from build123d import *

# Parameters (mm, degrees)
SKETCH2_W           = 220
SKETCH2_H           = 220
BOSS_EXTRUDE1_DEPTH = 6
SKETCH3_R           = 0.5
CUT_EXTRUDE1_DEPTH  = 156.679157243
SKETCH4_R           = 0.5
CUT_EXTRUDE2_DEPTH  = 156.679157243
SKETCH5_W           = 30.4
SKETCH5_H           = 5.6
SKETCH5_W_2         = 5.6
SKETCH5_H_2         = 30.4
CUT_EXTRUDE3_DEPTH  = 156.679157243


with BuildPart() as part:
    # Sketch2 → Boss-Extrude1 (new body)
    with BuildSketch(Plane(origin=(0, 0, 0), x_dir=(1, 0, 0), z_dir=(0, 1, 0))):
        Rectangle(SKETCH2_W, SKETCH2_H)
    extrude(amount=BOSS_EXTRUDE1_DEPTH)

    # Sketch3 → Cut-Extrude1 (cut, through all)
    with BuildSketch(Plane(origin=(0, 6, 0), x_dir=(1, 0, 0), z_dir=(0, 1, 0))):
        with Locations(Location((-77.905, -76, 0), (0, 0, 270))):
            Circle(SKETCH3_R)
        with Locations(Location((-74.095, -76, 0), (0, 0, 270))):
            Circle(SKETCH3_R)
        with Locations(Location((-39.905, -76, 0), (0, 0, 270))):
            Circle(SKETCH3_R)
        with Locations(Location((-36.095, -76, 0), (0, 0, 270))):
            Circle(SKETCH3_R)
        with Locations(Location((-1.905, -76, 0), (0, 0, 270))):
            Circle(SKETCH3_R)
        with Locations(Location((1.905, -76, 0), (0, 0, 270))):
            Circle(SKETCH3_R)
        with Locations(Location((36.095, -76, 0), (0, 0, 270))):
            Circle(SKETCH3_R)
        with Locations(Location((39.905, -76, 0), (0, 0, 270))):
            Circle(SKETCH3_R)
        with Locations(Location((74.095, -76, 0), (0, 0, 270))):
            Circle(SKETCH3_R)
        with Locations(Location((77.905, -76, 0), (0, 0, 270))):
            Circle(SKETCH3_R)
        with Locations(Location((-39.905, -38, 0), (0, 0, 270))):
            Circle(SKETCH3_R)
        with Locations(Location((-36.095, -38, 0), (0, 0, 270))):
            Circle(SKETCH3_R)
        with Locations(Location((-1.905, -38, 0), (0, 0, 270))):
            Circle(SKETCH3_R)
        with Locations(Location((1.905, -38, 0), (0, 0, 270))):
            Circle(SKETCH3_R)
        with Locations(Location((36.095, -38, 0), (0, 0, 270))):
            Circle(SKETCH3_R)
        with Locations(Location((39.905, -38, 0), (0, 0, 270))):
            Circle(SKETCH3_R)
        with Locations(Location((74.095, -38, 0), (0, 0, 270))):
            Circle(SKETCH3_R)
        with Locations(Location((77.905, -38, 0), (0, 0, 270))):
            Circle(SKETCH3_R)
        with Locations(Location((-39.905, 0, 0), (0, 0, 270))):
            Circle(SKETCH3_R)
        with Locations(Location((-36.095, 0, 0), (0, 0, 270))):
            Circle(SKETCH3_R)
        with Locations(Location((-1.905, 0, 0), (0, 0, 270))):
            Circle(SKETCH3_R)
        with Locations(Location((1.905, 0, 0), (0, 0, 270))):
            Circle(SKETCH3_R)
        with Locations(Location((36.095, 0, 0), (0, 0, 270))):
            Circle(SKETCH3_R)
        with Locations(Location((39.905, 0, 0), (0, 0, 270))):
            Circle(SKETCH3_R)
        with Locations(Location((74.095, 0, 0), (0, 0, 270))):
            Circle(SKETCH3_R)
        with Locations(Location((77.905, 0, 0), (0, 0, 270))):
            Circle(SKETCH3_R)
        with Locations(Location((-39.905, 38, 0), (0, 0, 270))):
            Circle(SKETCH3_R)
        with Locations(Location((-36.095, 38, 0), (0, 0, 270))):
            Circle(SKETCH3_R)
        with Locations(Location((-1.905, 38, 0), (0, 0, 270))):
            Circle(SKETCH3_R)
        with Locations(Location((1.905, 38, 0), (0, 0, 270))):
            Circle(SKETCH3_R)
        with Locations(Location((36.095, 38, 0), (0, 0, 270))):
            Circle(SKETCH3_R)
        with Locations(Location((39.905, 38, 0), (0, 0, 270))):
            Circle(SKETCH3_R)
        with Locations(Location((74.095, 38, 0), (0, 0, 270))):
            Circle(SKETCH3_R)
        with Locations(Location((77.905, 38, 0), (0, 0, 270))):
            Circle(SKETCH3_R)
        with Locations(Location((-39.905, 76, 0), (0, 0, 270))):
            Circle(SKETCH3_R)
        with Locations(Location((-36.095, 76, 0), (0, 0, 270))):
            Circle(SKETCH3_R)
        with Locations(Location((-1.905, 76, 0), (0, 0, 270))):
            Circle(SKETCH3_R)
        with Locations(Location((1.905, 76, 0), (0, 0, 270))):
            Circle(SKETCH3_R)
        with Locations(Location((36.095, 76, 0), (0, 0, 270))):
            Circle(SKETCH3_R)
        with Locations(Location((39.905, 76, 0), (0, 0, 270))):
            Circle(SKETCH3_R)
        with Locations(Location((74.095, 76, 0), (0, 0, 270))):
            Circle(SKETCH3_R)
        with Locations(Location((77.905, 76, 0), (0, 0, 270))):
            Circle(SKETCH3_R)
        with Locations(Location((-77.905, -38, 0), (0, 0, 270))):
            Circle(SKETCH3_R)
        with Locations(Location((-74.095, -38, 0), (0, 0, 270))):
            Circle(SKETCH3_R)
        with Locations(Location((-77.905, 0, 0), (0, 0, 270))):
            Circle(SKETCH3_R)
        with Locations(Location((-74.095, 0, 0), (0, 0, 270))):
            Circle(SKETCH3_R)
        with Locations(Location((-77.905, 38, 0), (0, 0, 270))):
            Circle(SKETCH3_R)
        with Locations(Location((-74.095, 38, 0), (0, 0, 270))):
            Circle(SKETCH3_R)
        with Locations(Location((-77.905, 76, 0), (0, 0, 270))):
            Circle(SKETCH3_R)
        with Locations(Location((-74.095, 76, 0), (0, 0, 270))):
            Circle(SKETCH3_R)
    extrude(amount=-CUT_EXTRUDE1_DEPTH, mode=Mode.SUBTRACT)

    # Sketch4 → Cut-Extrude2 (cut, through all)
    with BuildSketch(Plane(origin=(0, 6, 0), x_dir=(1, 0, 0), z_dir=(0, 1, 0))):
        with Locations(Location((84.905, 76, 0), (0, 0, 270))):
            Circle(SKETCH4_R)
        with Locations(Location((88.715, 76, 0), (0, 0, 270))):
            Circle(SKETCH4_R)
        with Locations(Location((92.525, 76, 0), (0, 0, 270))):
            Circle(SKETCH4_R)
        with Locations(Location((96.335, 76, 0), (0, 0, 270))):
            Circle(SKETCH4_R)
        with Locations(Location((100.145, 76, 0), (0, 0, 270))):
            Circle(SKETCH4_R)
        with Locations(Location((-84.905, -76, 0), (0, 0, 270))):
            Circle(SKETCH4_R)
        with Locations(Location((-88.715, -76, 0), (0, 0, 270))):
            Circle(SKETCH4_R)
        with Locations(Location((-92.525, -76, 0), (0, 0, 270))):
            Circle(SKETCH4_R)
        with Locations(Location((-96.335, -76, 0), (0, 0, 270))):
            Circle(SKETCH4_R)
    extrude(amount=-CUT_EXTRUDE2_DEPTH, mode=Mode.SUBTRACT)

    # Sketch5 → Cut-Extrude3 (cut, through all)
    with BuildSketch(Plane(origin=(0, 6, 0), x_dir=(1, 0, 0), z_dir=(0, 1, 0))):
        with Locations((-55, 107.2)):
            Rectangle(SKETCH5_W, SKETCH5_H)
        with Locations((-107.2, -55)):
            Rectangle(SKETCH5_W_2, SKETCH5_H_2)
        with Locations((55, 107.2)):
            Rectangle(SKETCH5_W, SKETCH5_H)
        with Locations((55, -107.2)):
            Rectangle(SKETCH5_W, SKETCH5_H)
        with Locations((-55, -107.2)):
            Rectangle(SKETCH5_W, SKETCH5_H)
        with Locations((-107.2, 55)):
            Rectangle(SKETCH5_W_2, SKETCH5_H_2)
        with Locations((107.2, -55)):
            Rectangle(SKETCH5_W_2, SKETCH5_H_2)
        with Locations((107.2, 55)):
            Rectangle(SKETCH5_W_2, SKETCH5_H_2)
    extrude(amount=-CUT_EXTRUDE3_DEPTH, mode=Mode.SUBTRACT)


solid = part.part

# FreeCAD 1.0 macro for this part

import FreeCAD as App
import Part
import Sketcher

V = App.Vector
Q = App.Units.Quantity


def add_polygon(sketch, points):
    """Adds a closed chain of lines whose ends are joined by coincident constraints."""
    first, n = sketch.GeometryCount, len(points)
    for a, b in zip(points, points[1:] + points[:1]):
        sketch.addGeometry(Part.LineSegment(App.Vector(*a, 0), App.Vector(*b, 0)), False)
    for i in range(n):
        sketch.addConstraint(Sketcher.Constraint("Coincident", first + i, 2, first + (i + 1) % n, 1))

doc = App.newDocument("Part")
params = doc.addObject("Spreadsheet::Sheet", "Params")
for row, (alias, value) in enumerate([
    ("sketch1_width", "220 mm"),
    ("pad1_length", "6 mm"),
    ("sketch2_diameter", "1 mm"),
    ("sketch3_diameter", "1 mm"),
    ("sketch4_width", "30.4 mm"),
    ("sketch4_width2", "5.6 mm"),
], start=1):
    params.set(f"A{row}", alias)
    params.set(f"B{row}", "=" + value)
    params.setAlias(f"B{row}", alias)

body = doc.addObject("PartDesign::Body", "Body")

# Sketch on XZ plane
sketch1 = body.newObject("Sketcher::SketchObject", "Sketch")
sketch1.AttachmentSupport = (doc.getObject("XZ_Plane"), [""])
sketch1.MapMode = "FlatFace"
add_polygon(sketch1, [(-110, -110), (-110, 110), (110, 110), (110, -110)])  # lines 0-3
sketch1.addConstraint(Sketcher.Constraint("Vertical", 0))
sketch1.addConstraint(Sketcher.Constraint("Horizontal", 1))
sketch1.addConstraint(Sketcher.Constraint("Vertical", 2))
sketch1.addConstraint(Sketcher.Constraint("Horizontal", 3))
sketch1.addConstraint(Sketcher.Constraint("Symmetric", 0, 2, 2, 2, -1, 1))
sketch1.addConstraint(Sketcher.Constraint("Equal", 3, 0))
sketch1.addConstraint(Sketcher.Constraint("DistanceX", 1, 1, 1, 2, Q("220 mm")))
sketch1.setExpression("Constraints[10]", "Params.sketch1_width")
pad1 = body.newObject("PartDesign::Pad", "Pad")
pad1.Profile = sketch1
pad1.setExpression("Length", "Params.pad1_length")
pad1.Reversed = True

# Sketch on XZ plane
sketch2 = body.newObject("Sketcher::SketchObject", "Sketch001")
sketch2.AttachmentSupport = (doc.getObject("XZ_Plane"), [""])
sketch2.MapMode = "FlatFace"
sketch2.AttachmentOffset = App.Placement(V(0, 0, -6), App.Rotation())
sketch2.addGeometry(Part.Circle(V(-77.905, 76, 0), V(0, 0, 1), 0.5), False)
sketch2.addGeometry(Part.Circle(V(-74.095, 76, 0), V(0, 0, 1), 0.5), False)
sketch2.addGeometry(Part.Circle(V(-39.905, 76, 0), V(0, 0, 1), 0.5), False)
sketch2.addGeometry(Part.Circle(V(-36.095, 76, 0), V(0, 0, 1), 0.5), False)
sketch2.addGeometry(Part.Circle(V(-1.905, 76, 0), V(0, 0, 1), 0.5), False)
sketch2.addGeometry(Part.Circle(V(1.905, 76, 0), V(0, 0, 1), 0.5), False)
sketch2.addGeometry(Part.Circle(V(36.095, 76, 0), V(0, 0, 1), 0.5), False)
sketch2.addGeometry(Part.Circle(V(39.905, 76, 0), V(0, 0, 1), 0.5), False)
sketch2.addGeometry(Part.Circle(V(74.095, 76, 0), V(0, 0, 1), 0.5), False)
sketch2.addGeometry(Part.Circle(V(77.905, 76, 0), V(0, 0, 1), 0.5), False)
sketch2.addGeometry(Part.Circle(V(-39.905, 38, 0), V(0, 0, 1), 0.5), False)
sketch2.addGeometry(Part.Circle(V(-36.095, 38, 0), V(0, 0, 1), 0.5), False)
sketch2.addGeometry(Part.Circle(V(-1.905, 38, 0), V(0, 0, 1), 0.5), False)
sketch2.addGeometry(Part.Circle(V(1.905, 38, 0), V(0, 0, 1), 0.5), False)
sketch2.addGeometry(Part.Circle(V(36.095, 38, 0), V(0, 0, 1), 0.5), False)
sketch2.addGeometry(Part.Circle(V(39.905, 38, 0), V(0, 0, 1), 0.5), False)
sketch2.addGeometry(Part.Circle(V(74.095, 38, 0), V(0, 0, 1), 0.5), False)
sketch2.addGeometry(Part.Circle(V(77.905, 38, 0), V(0, 0, 1), 0.5), False)
sketch2.addGeometry(Part.Circle(V(-39.905, 0, 0), V(0, 0, 1), 0.5), False)
sketch2.addGeometry(Part.Circle(V(-36.095, 0, 0), V(0, 0, 1), 0.5), False)
sketch2.addGeometry(Part.Circle(V(-1.905, 0, 0), V(0, 0, 1), 0.5), False)
sketch2.addGeometry(Part.Circle(V(1.905, 0, 0), V(0, 0, 1), 0.5), False)
sketch2.addGeometry(Part.Circle(V(36.095, 0, 0), V(0, 0, 1), 0.5), False)
sketch2.addGeometry(Part.Circle(V(39.905, 0, 0), V(0, 0, 1), 0.5), False)
sketch2.addGeometry(Part.Circle(V(74.095, 0, 0), V(0, 0, 1), 0.5), False)
sketch2.addGeometry(Part.Circle(V(77.905, 0, 0), V(0, 0, 1), 0.5), False)
sketch2.addGeometry(Part.Circle(V(-39.905, -38, 0), V(0, 0, 1), 0.5), False)
sketch2.addGeometry(Part.Circle(V(-36.095, -38, 0), V(0, 0, 1), 0.5), False)
sketch2.addGeometry(Part.Circle(V(-1.905, -38, 0), V(0, 0, 1), 0.5), False)
sketch2.addGeometry(Part.Circle(V(1.905, -38, 0), V(0, 0, 1), 0.5), False)
sketch2.addGeometry(Part.Circle(V(36.095, -38, 0), V(0, 0, 1), 0.5), False)
sketch2.addGeometry(Part.Circle(V(39.905, -38, 0), V(0, 0, 1), 0.5), False)
sketch2.addGeometry(Part.Circle(V(74.095, -38, 0), V(0, 0, 1), 0.5), False)
sketch2.addGeometry(Part.Circle(V(77.905, -38, 0), V(0, 0, 1), 0.5), False)
sketch2.addGeometry(Part.Circle(V(-39.905, -76, 0), V(0, 0, 1), 0.5), False)
sketch2.addGeometry(Part.Circle(V(-36.095, -76, 0), V(0, 0, 1), 0.5), False)
sketch2.addGeometry(Part.Circle(V(-1.905, -76, 0), V(0, 0, 1), 0.5), False)
sketch2.addGeometry(Part.Circle(V(1.905, -76, 0), V(0, 0, 1), 0.5), False)
sketch2.addGeometry(Part.Circle(V(36.095, -76, 0), V(0, 0, 1), 0.5), False)
sketch2.addGeometry(Part.Circle(V(39.905, -76, 0), V(0, 0, 1), 0.5), False)
sketch2.addGeometry(Part.Circle(V(74.095, -76, 0), V(0, 0, 1), 0.5), False)
sketch2.addGeometry(Part.Circle(V(77.905, -76, 0), V(0, 0, 1), 0.5), False)
sketch2.addGeometry(Part.Circle(V(-77.905, 38, 0), V(0, 0, 1), 0.5), False)
sketch2.addGeometry(Part.Circle(V(-74.095, 38, 0), V(0, 0, 1), 0.5), False)
sketch2.addGeometry(Part.Circle(V(-77.905, 0, 0), V(0, 0, 1), 0.5), False)
sketch2.addGeometry(Part.Circle(V(-74.095, 0, 0), V(0, 0, 1), 0.5), False)
sketch2.addGeometry(Part.Circle(V(-77.905, -38, 0), V(0, 0, 1), 0.5), False)
sketch2.addGeometry(Part.Circle(V(-74.095, -38, 0), V(0, 0, 1), 0.5), False)
sketch2.addGeometry(Part.Circle(V(-77.905, -76, 0), V(0, 0, 1), 0.5), False)
sketch2.addGeometry(Part.Circle(V(-74.095, -76, 0), V(0, 0, 1), 0.5), False)
sketch2.addConstraint(Sketcher.Constraint("Equal", 0, 1))
sketch2.addConstraint(Sketcher.Constraint("Equal", 1, 2))
sketch2.addConstraint(Sketcher.Constraint("Equal", 2, 3))
sketch2.addConstraint(Sketcher.Constraint("Equal", 3, 4))
sketch2.addConstraint(Sketcher.Constraint("Equal", 4, 5))
sketch2.addConstraint(Sketcher.Constraint("Equal", 5, 6))
sketch2.addConstraint(Sketcher.Constraint("Equal", 6, 7))
sketch2.addConstraint(Sketcher.Constraint("Equal", 7, 8))
sketch2.addConstraint(Sketcher.Constraint("Equal", 8, 9))
sketch2.addConstraint(Sketcher.Constraint("Equal", 9, 10))
sketch2.addConstraint(Sketcher.Constraint("Equal", 10, 11))
sketch2.addConstraint(Sketcher.Constraint("Equal", 11, 12))
sketch2.addConstraint(Sketcher.Constraint("Equal", 12, 13))
sketch2.addConstraint(Sketcher.Constraint("Equal", 13, 14))
sketch2.addConstraint(Sketcher.Constraint("Equal", 14, 15))
sketch2.addConstraint(Sketcher.Constraint("Equal", 15, 16))
sketch2.addConstraint(Sketcher.Constraint("Equal", 16, 17))
sketch2.addConstraint(Sketcher.Constraint("Equal", 17, 18))
sketch2.addConstraint(Sketcher.Constraint("Equal", 18, 19))
sketch2.addConstraint(Sketcher.Constraint("Equal", 19, 20))
sketch2.addConstraint(Sketcher.Constraint("Equal", 20, 21))
sketch2.addConstraint(Sketcher.Constraint("Equal", 21, 22))
sketch2.addConstraint(Sketcher.Constraint("Equal", 22, 23))
sketch2.addConstraint(Sketcher.Constraint("Equal", 23, 24))
sketch2.addConstraint(Sketcher.Constraint("Equal", 24, 25))
sketch2.addConstraint(Sketcher.Constraint("Equal", 25, 26))
sketch2.addConstraint(Sketcher.Constraint("Equal", 26, 27))
sketch2.addConstraint(Sketcher.Constraint("Equal", 27, 28))
sketch2.addConstraint(Sketcher.Constraint("Equal", 28, 29))
sketch2.addConstraint(Sketcher.Constraint("Equal", 29, 30))
sketch2.addConstraint(Sketcher.Constraint("Equal", 30, 31))
sketch2.addConstraint(Sketcher.Constraint("Equal", 31, 32))
sketch2.addConstraint(Sketcher.Constraint("Equal", 32, 33))
sketch2.addConstraint(Sketcher.Constraint("Equal", 33, 34))
sketch2.addConstraint(Sketcher.Constraint("Equal", 34, 35))
sketch2.addConstraint(Sketcher.Constraint("Equal", 35, 36))
sketch2.addConstraint(Sketcher.Constraint("Equal", 36, 37))
sketch2.addConstraint(Sketcher.Constraint("Equal", 37, 38))
sketch2.addConstraint(Sketcher.Constraint("Equal", 38, 39))
sketch2.addConstraint(Sketcher.Constraint("Equal", 39, 40))
sketch2.addConstraint(Sketcher.Constraint("Equal", 40, 41))
sketch2.addConstraint(Sketcher.Constraint("Equal", 41, 42))
sketch2.addConstraint(Sketcher.Constraint("Equal", 42, 43))
sketch2.addConstraint(Sketcher.Constraint("Equal", 43, 44))
sketch2.addConstraint(Sketcher.Constraint("Equal", 44, 45))
sketch2.addConstraint(Sketcher.Constraint("Equal", 45, 46))
sketch2.addConstraint(Sketcher.Constraint("Equal", 46, 47))
sketch2.addConstraint(Sketcher.Constraint("Equal", 47, 48))
sketch2.addConstraint(Sketcher.Constraint("Equal", 48, 49))
sketch2.addConstraint(Sketcher.Constraint("Symmetric", 20, 3, 21, 3, -1, 1))
sketch2.addConstraint(Sketcher.Constraint("Symmetric", 19, 3, 22, 3, -1, 1))
sketch2.addConstraint(Sketcher.Constraint("Symmetric", 18, 3, 23, 3, -1, 1))
sketch2.addConstraint(Sketcher.Constraint("Symmetric", 15, 3, 26, 3, -1, 1))
sketch2.addConstraint(Sketcher.Constraint("Symmetric", 14, 3, 27, 3, -1, 1))
sketch2.addConstraint(Sketcher.Constraint("Symmetric", 13, 3, 28, 3, -1, 1))
sketch2.addConstraint(Sketcher.Constraint("Symmetric", 12, 3, 29, 3, -1, 1))
sketch2.addConstraint(Sketcher.Constraint("Symmetric", 11, 3, 30, 3, -1, 1))
sketch2.addConstraint(Sketcher.Constraint("Symmetric", 10, 3, 31, 3, -1, 1))
sketch2.addConstraint(Sketcher.Constraint("Symmetric", 7, 3, 34, 3, -1, 1))
sketch2.addConstraint(Sketcher.Constraint("Symmetric", 6, 3, 35, 3, -1, 1))
sketch2.addConstraint(Sketcher.Constraint("Symmetric", 5, 3, 36, 3, -1, 1))
sketch2.addConstraint(Sketcher.Constraint("Symmetric", 4, 3, 37, 3, -1, 1))
sketch2.addConstraint(Sketcher.Constraint("Symmetric", 3, 3, 38, 3, -1, 1))
sketch2.addConstraint(Sketcher.Constraint("Symmetric", 2, 3, 39, 3, -1, 1))
sketch2.addConstraint(Sketcher.Constraint("Symmetric", 1, 3, 40, 3, -1, 1))
sketch2.addConstraint(Sketcher.Constraint("Symmetric", 0, 3, 41, 3, -1, 1))
sketch2.addConstraint(Sketcher.Constraint("Symmetric", 33, 3, 42, 3, -1, 1))
sketch2.addConstraint(Sketcher.Constraint("Symmetric", 32, 3, 43, 3, -1, 1))
sketch2.addConstraint(Sketcher.Constraint("Symmetric", 25, 3, 44, 3, -1, 1))
sketch2.addConstraint(Sketcher.Constraint("Symmetric", 24, 3, 45, 3, -1, 1))
sketch2.addConstraint(Sketcher.Constraint("Symmetric", 17, 3, 46, 3, -1, 1))
sketch2.addConstraint(Sketcher.Constraint("Symmetric", 16, 3, 47, 3, -1, 1))
sketch2.addConstraint(Sketcher.Constraint("Symmetric", 9, 3, 48, 3, -1, 1))
sketch2.addConstraint(Sketcher.Constraint("Symmetric", 8, 3, 49, 3, -1, 1))
sketch2.addConstraint(Sketcher.Constraint("Symmetric", 4, 3, 5, 3, -2))
sketch2.addConstraint(Sketcher.Constraint("Symmetric", 3, 3, 6, 3, -2))
sketch2.addConstraint(Sketcher.Constraint("Symmetric", 2, 3, 7, 3, -2))
sketch2.addConstraint(Sketcher.Constraint("Symmetric", 1, 3, 8, 3, -2))
sketch2.addConstraint(Sketcher.Constraint("Symmetric", 0, 3, 9, 3, -2))
sketch2.addConstraint(Sketcher.Constraint("Symmetric", 12, 3, 13, 3, -2))
sketch2.addConstraint(Sketcher.Constraint("Symmetric", 11, 3, 14, 3, -2))
sketch2.addConstraint(Sketcher.Constraint("Symmetric", 10, 3, 15, 3, -2))
sketch2.addConstraint(Sketcher.Constraint("Symmetric", 17, 3, 42, 3, -2))
sketch2.addConstraint(Sketcher.Constraint("Symmetric", 16, 3, 43, 3, -2))
sketch2.addConstraint(Sketcher.Constraint("PointOnObject", 18, 3, -1))
sketch2.addConstraint(Sketcher.Constraint("PointOnObject", 19, 3, -1))
sketch2.addConstraint(Sketcher.Constraint("PointOnObject", 20, 3, -1))
sketch2.addConstraint(Sketcher.Constraint("PointOnObject", 24, 3, -1))
sketch2.addConstraint(Sketcher.Constraint("PointOnObject", 25, 3, -1))
sketch2.addConstraint(Sketcher.Constraint("Horizontal", 0, 3, 1, 3))
sketch2.addConstraint(Sketcher.Constraint("Horizontal", 1, 3, 2, 3))
sketch2.addConstraint(Sketcher.Constraint("Horizontal", 2, 3, 3, 3))
sketch2.addConstraint(Sketcher.Constraint("Horizontal", 3, 3, 4, 3))
sketch2.addConstraint(Sketcher.Constraint("Horizontal", 10, 3, 11, 3))
sketch2.addConstraint(Sketcher.Constraint("Horizontal", 11, 3, 12, 3))
sketch2.addConstraint(Sketcher.Constraint("Horizontal", 15, 3, 16, 3))
sketch2.addConstraint(Sketcher.Constraint("Horizontal", 16, 3, 17, 3))
sketch2.addConstraint(Sketcher.Constraint("Vertical", 2, 3, 10, 3))
sketch2.addConstraint(Sketcher.Constraint("Vertical", 3, 3, 11, 3))
sketch2.addConstraint(Sketcher.Constraint("Vertical", 4, 3, 12, 3))
sketch2.addConstraint(Sketcher.Constraint("Vertical", 8, 3, 16, 3))
sketch2.addConstraint(Sketcher.Constraint("Vertical", 9, 3, 17, 3))
sketch2.addConstraint(Sketcher.Constraint("Vertical", 10, 3, 18, 3))
sketch2.addConstraint(Sketcher.Constraint("Vertical", 11, 3, 19, 3))
sketch2.addConstraint(Sketcher.Constraint("Vertical", 12, 3, 20, 3))
sketch2.addConstraint(Sketcher.Constraint("Vertical", 16, 3, 24, 3))
sketch2.addConstraint(Sketcher.Constraint("Vertical", 17, 3, 25, 3))
sketch2.addConstraint(Sketcher.Constraint("Diameter", 0, Q("1 mm")))
sketch2.addConstraint(Sketcher.Constraint("DistanceY", -1, 1, 0, 3, Q("76 mm")))
sketch2.addConstraint(Sketcher.Constraint("DistanceY", -1, 1, 10, 3, Q("38 mm")))
sketch2.addConstraint(Sketcher.Constraint("DistanceX", 0, 3, 2, 3, Q("38 mm")))
sketch2.addConstraint(Sketcher.Constraint("DistanceX", 1, 3, 3, 3, Q("38 mm")))
sketch2.addConstraint(Sketcher.Constraint("DistanceX", 2, 3, 4, 3, Q("38 mm")))
sketch2.addConstraint(Sketcher.Constraint("DistanceX", 3, 3, 5, 3, Q("38 mm")))
sketch2.addConstraint(Sketcher.Constraint("DistanceX", 0, 3, 1, 3, Q("3.81 mm")))
sketch2.setExpression("Constraints[107]", "Params.sketch2_diameter")
pocket1 = body.newObject("PartDesign::Pocket", "Pocket")
pocket1.Profile = sketch2
pocket1.Type = "ThroughAll"
pocket1.Reversed = True

# Sketch on XZ plane
sketch3 = body.newObject("Sketcher::SketchObject", "Sketch002")
sketch3.AttachmentSupport = (doc.getObject("XZ_Plane"), [""])
sketch3.MapMode = "FlatFace"
sketch3.AttachmentOffset = App.Placement(V(0, 0, -6), App.Rotation())
sketch3.addGeometry(Part.Circle(V(84.905, -76, 0), V(0, 0, 1), 0.5), False)
sketch3.addGeometry(Part.Circle(V(88.715, -76, 0), V(0, 0, 1), 0.5), False)
sketch3.addGeometry(Part.Circle(V(92.525, -76, 0), V(0, 0, 1), 0.5), False)
sketch3.addGeometry(Part.Circle(V(96.335, -76, 0), V(0, 0, 1), 0.5), False)
sketch3.addGeometry(Part.Circle(V(100.145, -76, 0), V(0, 0, 1), 0.5), False)
sketch3.addGeometry(Part.Circle(V(-84.905, 76, 0), V(0, 0, 1), 0.5), False)
sketch3.addGeometry(Part.Circle(V(-88.715, 76, 0), V(0, 0, 1), 0.5), False)
sketch3.addGeometry(Part.Circle(V(-92.525, 76, 0), V(0, 0, 1), 0.5), False)
sketch3.addGeometry(Part.Circle(V(-96.335, 76, 0), V(0, 0, 1), 0.5), False)
sketch3.addConstraint(Sketcher.Constraint("Equal", 0, 1))
sketch3.addConstraint(Sketcher.Constraint("Equal", 1, 2))
sketch3.addConstraint(Sketcher.Constraint("Equal", 2, 3))
sketch3.addConstraint(Sketcher.Constraint("Equal", 3, 4))
sketch3.addConstraint(Sketcher.Constraint("Equal", 4, 5))
sketch3.addConstraint(Sketcher.Constraint("Equal", 5, 6))
sketch3.addConstraint(Sketcher.Constraint("Equal", 6, 7))
sketch3.addConstraint(Sketcher.Constraint("Equal", 7, 8))
sketch3.addConstraint(Sketcher.Constraint("Symmetric", 0, 3, 5, 3, -1, 1))
sketch3.addConstraint(Sketcher.Constraint("Symmetric", 1, 3, 6, 3, -1, 1))
sketch3.addConstraint(Sketcher.Constraint("Symmetric", 2, 3, 7, 3, -1, 1))
sketch3.addConstraint(Sketcher.Constraint("Symmetric", 3, 3, 8, 3, -1, 1))
sketch3.addConstraint(Sketcher.Constraint("Horizontal", 0, 3, 1, 3))
sketch3.addConstraint(Sketcher.Constraint("Horizontal", 1, 3, 2, 3))
sketch3.addConstraint(Sketcher.Constraint("Horizontal", 2, 3, 3, 3))
sketch3.addConstraint(Sketcher.Constraint("Horizontal", 3, 3, 4, 3))
sketch3.addConstraint(Sketcher.Constraint("Diameter", 0, Q("1 mm")))
sketch3.addConstraint(Sketcher.Constraint("DistanceY", 0, 3, -1, 1, Q("76 mm")))
sketch3.addConstraint(Sketcher.Constraint("DistanceX", 0, 3, 1, 3, Q("3.81 mm")))
sketch3.addConstraint(Sketcher.Constraint("DistanceX", 1, 3, 2, 3, Q("3.81 mm")))
sketch3.addConstraint(Sketcher.Constraint("DistanceX", 2, 3, 3, 3, Q("3.81 mm")))
sketch3.addConstraint(Sketcher.Constraint("DistanceX", 3, 3, 4, 3, Q("3.81 mm")))
sketch3.addConstraint(Sketcher.Constraint("DistanceX", 5, 3, 0, 3, Q("169.81 mm")))
sketch3.setExpression("Constraints[16]", "Params.sketch3_diameter")
pocket2 = body.newObject("PartDesign::Pocket", "Pocket001")
pocket2.Profile = sketch3
pocket2.Type = "ThroughAll"
pocket2.Reversed = True

# Sketch on XZ plane
sketch4 = body.newObject("Sketcher::SketchObject", "Sketch003")
sketch4.AttachmentSupport = (doc.getObject("XZ_Plane"), [""])
sketch4.MapMode = "FlatFace"
sketch4.AttachmentOffset = App.Placement(V(0, 0, -6), App.Rotation())
add_polygon(sketch4, [(-70.2, -110), (-70.2, -104.4), (-39.8, -104.4), (-39.8, -110)])  # lines 0-3
add_polygon(sketch4, [(-110, 39.8), (-110, 70.2), (-104.4, 70.2), (-104.4, 39.8)])  # lines 4-7
add_polygon(sketch4, [(39.8, -110), (39.8, -104.4), (70.2, -104.4), (70.2, -110)])  # lines 8-11
add_polygon(sketch4, [(39.8, 104.4), (39.8, 110), (70.2, 110), (70.2, 104.4)])  # lines 12-15
add_polygon(sketch4, [(-70.2, 104.4), (-70.2, 110), (-39.8, 110), (-39.8, 104.4)])  # lines 16-19
add_polygon(sketch4, [(-110, -70.2), (-110, -39.8), (-104.4, -39.8), (-104.4, -70.2)])  # lines 20-23
add_polygon(sketch4, [(104.4, 39.8), (104.4, 70.2), (110, 70.2), (110, 39.8)])  # lines 24-27
add_polygon(sketch4, [(104.4, -70.2), (104.4, -39.8), (110, -39.8), (110, -70.2)])  # lines 28-31
sketch4.addConstraint(Sketcher.Constraint("Vertical", 0))
sketch4.addConstraint(Sketcher.Constraint("Horizontal", 1))
sketch4.addConstraint(Sketcher.Constraint("Vertical", 2))
sketch4.addConstraint(Sketcher.Constraint("Horizontal", 3))
sketch4.addConstraint(Sketcher.Constraint("Vertical", 4))
sketch4.addConstraint(Sketcher.Constraint("Horizontal", 5))
sketch4.addConstraint(Sketcher.Constraint("Vertical", 6))
sketch4.addConstraint(Sketcher.Constraint("Horizontal", 7))
sketch4.addConstraint(Sketcher.Constraint("Vertical", 8))
sketch4.addConstraint(Sketcher.Constraint("Horizontal", 9))
sketch4.addConstraint(Sketcher.Constraint("Vertical", 10))
sketch4.addConstraint(Sketcher.Constraint("Horizontal", 11))
sketch4.addConstraint(Sketcher.Constraint("Vertical", 12))
sketch4.addConstraint(Sketcher.Constraint("Horizontal", 13))
sketch4.addConstraint(Sketcher.Constraint("Vertical", 14))
sketch4.addConstraint(Sketcher.Constraint("Horizontal", 15))
sketch4.addConstraint(Sketcher.Constraint("Vertical", 16))
sketch4.addConstraint(Sketcher.Constraint("Horizontal", 17))
sketch4.addConstraint(Sketcher.Constraint("Vertical", 18))
sketch4.addConstraint(Sketcher.Constraint("Horizontal", 19))
sketch4.addConstraint(Sketcher.Constraint("Vertical", 20))
sketch4.addConstraint(Sketcher.Constraint("Horizontal", 21))
sketch4.addConstraint(Sketcher.Constraint("Vertical", 22))
sketch4.addConstraint(Sketcher.Constraint("Horizontal", 23))
sketch4.addConstraint(Sketcher.Constraint("Vertical", 24))
sketch4.addConstraint(Sketcher.Constraint("Horizontal", 25))
sketch4.addConstraint(Sketcher.Constraint("Vertical", 26))
sketch4.addConstraint(Sketcher.Constraint("Horizontal", 27))
sketch4.addConstraint(Sketcher.Constraint("Vertical", 28))
sketch4.addConstraint(Sketcher.Constraint("Horizontal", 29))
sketch4.addConstraint(Sketcher.Constraint("Vertical", 30))
sketch4.addConstraint(Sketcher.Constraint("Horizontal", 31))
sketch4.addConstraint(Sketcher.Constraint("Symmetric", 2, 2, 12, 2, -1, 1))
sketch4.addConstraint(Sketcher.Constraint("Symmetric", 0, 2, 14, 2, -1, 1))
sketch4.addConstraint(Sketcher.Constraint("Symmetric", 10, 2, 16, 2, -1, 1))
sketch4.addConstraint(Sketcher.Constraint("Symmetric", 8, 2, 18, 2, -1, 1))
sketch4.addConstraint(Sketcher.Constraint("Symmetric", 22, 2, 24, 2, -1, 1))
sketch4.addConstraint(Sketcher.Constraint("Symmetric", 20, 2, 26, 2, -1, 1))
sketch4.addConstraint(Sketcher.Constraint("Symmetric", 6, 2, 28, 2, -1, 1))
sketch4.addConstraint(Sketcher.Constraint("Symmetric", 4, 2, 30, 2, -1, 1))
sketch4.addConstraint(Sketcher.Constraint("Symmetric", 1, 2, 8, 2, -2))
sketch4.addConstraint(Sketcher.Constraint("Symmetric", 3, 2, 10, 2, -2))
sketch4.addConstraint(Sketcher.Constraint("Symmetric", 5, 2, 24, 2, -2))
sketch4.addConstraint(Sketcher.Constraint("Symmetric", 7, 2, 26, 2, -2))
sketch4.addConstraint(Sketcher.Constraint("Equal", 31, 0))
sketch4.addConstraint(Sketcher.Constraint("Equal", 19, 4))
sketch4.addConstraint(Sketcher.Constraint("DistanceX", 1, 1, 1, 2, Q("30.4 mm")))
sketch4.addConstraint(Sketcher.Constraint("DistanceX", 5, 1, 5, 2, Q("5.6 mm")))
sketch4.addConstraint(Sketcher.Constraint("DistanceY", 2, 2, -1, 1, Q("110 mm")))
sketch4.addConstraint(Sketcher.Constraint("DistanceX", 4, 2, -1, 1, Q("110 mm")))
sketch4.addConstraint(Sketcher.Constraint("DistanceX", 0, 2, 8, 2, Q("110 mm")))
sketch4.addConstraint(Sketcher.Constraint("DistanceY", -1, 1, 4, 2, Q("70.2 mm")))
sketch4.setExpression("Constraints[78]", "Params.sketch4_width")
sketch4.setExpression("Constraints[79]", "Params.sketch4_width2")
pocket3 = body.newObject("PartDesign::Pocket", "Pocket002")
pocket3.Profile = sketch4
pocket3.Type = "ThroughAll"
pocket3.Reversed = True

doc.recompute()
